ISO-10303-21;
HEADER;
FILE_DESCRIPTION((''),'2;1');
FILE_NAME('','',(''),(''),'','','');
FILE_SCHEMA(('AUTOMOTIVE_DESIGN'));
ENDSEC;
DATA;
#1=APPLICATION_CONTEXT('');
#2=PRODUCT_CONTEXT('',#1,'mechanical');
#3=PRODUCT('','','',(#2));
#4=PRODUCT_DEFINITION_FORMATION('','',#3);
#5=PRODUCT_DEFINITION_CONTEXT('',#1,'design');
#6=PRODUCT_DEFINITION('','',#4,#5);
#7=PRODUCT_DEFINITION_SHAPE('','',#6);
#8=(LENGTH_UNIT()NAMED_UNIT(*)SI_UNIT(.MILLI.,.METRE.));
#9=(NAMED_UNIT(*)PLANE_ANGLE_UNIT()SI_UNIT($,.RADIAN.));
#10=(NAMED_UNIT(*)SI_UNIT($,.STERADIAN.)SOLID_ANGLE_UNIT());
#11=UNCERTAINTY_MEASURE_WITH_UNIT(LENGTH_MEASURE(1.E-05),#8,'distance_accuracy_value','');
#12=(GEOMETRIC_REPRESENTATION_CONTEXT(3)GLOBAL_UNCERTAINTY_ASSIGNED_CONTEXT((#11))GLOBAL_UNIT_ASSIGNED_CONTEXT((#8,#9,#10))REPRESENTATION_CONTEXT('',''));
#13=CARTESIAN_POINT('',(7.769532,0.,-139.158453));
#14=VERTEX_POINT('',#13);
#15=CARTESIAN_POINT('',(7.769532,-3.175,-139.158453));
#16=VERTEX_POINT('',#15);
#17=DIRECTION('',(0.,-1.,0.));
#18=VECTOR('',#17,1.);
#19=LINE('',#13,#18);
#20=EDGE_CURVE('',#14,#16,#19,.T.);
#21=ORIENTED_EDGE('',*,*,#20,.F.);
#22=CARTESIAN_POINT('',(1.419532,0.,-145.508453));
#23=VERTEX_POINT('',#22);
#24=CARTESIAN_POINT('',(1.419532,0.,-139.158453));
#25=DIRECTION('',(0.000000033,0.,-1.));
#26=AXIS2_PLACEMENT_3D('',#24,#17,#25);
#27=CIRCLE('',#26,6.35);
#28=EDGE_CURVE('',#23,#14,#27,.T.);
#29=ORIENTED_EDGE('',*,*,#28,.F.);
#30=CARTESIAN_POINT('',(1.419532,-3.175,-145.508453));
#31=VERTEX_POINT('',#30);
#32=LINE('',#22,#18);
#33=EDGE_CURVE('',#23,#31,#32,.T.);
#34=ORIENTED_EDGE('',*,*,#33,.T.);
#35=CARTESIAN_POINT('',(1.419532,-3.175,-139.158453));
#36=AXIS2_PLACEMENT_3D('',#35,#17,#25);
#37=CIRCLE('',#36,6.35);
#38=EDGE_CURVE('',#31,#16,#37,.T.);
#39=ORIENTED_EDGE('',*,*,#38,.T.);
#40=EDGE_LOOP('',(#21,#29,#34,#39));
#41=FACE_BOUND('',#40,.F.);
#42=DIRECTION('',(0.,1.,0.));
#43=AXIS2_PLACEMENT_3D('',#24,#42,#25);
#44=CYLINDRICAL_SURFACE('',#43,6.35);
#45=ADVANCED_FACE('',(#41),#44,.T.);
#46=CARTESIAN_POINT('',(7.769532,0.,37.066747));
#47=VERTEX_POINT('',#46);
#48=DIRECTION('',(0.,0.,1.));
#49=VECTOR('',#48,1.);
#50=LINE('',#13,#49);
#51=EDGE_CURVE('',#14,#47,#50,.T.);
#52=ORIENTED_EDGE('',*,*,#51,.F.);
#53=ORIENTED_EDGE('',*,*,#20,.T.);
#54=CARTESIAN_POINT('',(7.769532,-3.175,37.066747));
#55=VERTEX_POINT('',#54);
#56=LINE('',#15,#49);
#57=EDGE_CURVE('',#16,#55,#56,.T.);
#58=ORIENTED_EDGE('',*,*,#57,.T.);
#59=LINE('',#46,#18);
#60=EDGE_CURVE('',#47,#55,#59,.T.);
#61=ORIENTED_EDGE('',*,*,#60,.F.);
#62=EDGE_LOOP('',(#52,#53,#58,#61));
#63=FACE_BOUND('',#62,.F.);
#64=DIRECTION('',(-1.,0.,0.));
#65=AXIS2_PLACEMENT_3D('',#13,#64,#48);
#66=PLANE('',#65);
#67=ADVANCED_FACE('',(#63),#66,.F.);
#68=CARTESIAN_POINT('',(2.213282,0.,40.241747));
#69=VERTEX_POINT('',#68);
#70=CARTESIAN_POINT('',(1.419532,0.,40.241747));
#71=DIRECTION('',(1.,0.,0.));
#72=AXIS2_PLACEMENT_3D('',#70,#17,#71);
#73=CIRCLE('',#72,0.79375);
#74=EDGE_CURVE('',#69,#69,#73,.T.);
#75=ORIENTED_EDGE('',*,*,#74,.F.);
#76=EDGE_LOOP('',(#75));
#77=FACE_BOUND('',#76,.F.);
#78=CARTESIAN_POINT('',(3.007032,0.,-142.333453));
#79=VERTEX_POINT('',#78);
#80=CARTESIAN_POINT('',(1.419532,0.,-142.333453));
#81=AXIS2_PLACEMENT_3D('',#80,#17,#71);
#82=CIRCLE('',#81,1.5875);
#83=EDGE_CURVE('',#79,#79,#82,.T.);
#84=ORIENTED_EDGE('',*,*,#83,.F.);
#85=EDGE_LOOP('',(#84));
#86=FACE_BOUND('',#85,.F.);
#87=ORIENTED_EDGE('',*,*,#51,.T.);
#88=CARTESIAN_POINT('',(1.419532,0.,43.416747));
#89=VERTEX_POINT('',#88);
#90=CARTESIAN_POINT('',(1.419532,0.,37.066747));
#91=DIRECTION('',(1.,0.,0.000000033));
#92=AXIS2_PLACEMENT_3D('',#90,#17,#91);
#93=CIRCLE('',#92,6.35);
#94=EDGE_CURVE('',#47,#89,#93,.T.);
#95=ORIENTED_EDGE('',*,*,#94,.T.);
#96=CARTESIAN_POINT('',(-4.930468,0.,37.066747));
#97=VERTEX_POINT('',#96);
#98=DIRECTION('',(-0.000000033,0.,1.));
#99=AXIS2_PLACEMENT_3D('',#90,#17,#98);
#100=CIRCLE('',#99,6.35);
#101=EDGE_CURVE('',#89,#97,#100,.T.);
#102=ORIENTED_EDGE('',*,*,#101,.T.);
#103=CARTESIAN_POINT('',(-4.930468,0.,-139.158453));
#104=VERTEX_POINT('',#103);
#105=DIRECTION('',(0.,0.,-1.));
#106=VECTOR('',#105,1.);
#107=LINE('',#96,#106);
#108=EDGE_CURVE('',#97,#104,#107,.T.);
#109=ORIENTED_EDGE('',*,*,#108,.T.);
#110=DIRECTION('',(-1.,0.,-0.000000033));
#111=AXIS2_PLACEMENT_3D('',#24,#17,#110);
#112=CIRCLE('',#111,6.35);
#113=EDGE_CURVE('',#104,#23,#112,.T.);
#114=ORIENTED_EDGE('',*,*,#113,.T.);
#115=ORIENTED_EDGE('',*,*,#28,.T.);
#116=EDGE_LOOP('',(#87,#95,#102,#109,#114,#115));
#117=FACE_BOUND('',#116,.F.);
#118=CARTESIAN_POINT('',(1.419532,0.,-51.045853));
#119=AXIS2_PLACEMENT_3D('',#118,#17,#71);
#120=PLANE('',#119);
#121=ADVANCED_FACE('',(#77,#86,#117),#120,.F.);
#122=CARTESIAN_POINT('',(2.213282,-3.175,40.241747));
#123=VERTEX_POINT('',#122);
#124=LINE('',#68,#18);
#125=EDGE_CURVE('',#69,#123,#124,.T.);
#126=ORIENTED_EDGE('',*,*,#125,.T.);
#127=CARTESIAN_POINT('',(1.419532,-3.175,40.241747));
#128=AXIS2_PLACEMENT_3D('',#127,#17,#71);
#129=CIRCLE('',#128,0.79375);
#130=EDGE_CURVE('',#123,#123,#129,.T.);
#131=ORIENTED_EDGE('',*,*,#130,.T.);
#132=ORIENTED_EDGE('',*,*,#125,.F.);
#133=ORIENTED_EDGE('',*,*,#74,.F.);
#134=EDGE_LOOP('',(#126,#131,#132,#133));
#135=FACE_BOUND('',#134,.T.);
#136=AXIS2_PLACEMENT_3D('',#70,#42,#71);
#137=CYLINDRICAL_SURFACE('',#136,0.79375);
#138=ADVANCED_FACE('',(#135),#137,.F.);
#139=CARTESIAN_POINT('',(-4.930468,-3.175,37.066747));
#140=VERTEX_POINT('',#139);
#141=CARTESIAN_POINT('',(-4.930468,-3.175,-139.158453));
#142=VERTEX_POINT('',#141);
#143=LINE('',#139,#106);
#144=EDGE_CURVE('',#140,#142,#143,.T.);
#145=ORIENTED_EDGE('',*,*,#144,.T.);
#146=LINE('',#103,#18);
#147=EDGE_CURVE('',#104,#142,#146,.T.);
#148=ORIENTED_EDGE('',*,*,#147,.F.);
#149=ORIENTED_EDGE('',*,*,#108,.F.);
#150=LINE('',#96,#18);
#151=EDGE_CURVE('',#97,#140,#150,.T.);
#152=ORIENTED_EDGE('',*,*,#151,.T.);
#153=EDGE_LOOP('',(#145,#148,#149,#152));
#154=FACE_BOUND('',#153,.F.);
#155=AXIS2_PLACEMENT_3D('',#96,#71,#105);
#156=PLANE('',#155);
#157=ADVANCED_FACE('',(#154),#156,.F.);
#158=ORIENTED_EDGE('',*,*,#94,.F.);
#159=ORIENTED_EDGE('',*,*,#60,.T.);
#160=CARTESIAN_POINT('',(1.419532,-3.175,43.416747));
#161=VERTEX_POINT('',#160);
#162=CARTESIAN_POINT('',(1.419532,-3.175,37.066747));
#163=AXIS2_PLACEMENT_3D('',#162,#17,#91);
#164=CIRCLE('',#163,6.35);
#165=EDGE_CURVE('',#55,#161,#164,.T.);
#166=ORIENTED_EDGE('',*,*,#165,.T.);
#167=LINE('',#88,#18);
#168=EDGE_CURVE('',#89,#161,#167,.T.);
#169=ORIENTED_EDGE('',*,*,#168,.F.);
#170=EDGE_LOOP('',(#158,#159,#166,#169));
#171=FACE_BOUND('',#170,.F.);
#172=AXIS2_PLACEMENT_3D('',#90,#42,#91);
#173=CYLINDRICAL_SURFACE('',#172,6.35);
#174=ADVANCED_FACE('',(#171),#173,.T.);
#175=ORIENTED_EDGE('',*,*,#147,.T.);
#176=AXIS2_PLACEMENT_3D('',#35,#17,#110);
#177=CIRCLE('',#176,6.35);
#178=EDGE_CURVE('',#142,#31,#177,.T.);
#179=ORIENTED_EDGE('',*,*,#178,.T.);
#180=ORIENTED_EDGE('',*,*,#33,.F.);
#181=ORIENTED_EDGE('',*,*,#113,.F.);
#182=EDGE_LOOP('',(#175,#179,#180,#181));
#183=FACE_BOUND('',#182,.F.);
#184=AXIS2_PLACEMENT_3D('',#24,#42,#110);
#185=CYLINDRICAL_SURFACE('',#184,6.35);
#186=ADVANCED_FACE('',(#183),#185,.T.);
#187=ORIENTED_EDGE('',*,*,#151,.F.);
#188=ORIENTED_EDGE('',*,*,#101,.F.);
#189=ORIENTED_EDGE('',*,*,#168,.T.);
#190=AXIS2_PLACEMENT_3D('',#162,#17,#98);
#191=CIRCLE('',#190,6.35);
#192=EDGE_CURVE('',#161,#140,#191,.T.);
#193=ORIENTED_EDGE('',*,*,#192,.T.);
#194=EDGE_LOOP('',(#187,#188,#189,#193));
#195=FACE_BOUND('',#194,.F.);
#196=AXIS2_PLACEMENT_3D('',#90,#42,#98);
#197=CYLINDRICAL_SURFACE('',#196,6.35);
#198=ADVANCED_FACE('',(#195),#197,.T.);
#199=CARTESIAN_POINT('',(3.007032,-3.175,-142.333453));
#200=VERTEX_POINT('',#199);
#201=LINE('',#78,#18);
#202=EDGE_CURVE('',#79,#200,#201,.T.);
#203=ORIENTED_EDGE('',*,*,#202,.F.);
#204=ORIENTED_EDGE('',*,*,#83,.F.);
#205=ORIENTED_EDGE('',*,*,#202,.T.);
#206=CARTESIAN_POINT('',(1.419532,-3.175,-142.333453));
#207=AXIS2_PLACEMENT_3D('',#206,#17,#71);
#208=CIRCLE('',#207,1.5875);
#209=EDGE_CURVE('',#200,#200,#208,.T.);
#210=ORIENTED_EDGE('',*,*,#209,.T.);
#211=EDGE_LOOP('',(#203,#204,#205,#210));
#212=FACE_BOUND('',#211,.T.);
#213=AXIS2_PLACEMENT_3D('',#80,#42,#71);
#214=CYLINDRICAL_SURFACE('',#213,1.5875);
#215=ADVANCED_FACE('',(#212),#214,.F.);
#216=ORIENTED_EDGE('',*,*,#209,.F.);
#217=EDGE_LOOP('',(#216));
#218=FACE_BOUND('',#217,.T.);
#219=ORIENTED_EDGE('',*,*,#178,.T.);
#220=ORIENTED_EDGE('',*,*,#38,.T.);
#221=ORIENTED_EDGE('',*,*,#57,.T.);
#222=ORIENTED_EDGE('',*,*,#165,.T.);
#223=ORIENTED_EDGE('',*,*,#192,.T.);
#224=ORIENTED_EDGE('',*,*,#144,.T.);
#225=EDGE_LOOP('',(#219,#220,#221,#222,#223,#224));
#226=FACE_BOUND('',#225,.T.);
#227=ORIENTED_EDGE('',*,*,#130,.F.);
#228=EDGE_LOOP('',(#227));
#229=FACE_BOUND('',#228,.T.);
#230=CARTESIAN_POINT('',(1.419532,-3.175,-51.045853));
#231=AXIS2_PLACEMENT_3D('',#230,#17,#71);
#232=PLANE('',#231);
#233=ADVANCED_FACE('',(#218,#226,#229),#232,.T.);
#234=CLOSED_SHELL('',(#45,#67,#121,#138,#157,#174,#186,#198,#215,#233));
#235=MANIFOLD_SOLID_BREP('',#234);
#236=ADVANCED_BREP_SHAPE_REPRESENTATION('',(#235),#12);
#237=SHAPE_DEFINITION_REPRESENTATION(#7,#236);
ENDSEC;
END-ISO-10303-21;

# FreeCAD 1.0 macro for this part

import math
import FreeCAD as App
import Part
import Sketcher

V = App.Vector
Q = App.Units.Quantity

doc = App.newDocument("Part")
body = doc.addObject("PartDesign::Body", "Body")

# Sketch on XZ plane
sketch1 = body.newObject("Sketcher::SketchObject", "Sketch")
sketch1.AttachmentSupport = (doc.getObject("XZ_Plane"), [""])
sketch1.MapMode = "FlatFace"
sketch1.addGeometry([
    Part.ArcOfCircle(Part.Circle(V(1.419532, 37.066747, 0), V(0, 0, 1), 6.35), math.radians(90.000002), math.radians(179.999998)),  # 0
    Part.LineSegment(V(-4.930468, 37.066747, 0), V(-4.930468, -139.158453, 0)),  # 1
    Part.ArcOfCircle(Part.Circle(V(1.419532, -139.158453, 0), V(0, 0, 1), 6.35), math.radians(-179.999998), math.radians(-90.000002)),  # 2
    Part.ArcOfCircle(Part.Circle(V(1.419532, -139.158453, 0), V(0, 0, 1), 6.35), math.radians(-89.999998), math.radians(-0.000002)),  # 3
    Part.LineSegment(V(7.769532, -139.158453, 0), V(7.769532, 37.066747, 0)),  # 4
    Part.ArcOfCircle(Part.Circle(V(1.419532, 37.066747, 0), V(0, 0, 1), 6.35), math.radians(0.000002), math.radians(89.999998)),  # 5
    Part.Circle(V(1.419532, -142.333453, 0), V(0, 0, 1), 1.5875),  # 6
    Part.Circle(V(1.419532, 40.241747, 0), V(0, 0, 1), 0.79375),  # 7
], False)
sketch1.addConstraint([
    Sketcher.Constraint("Tangent", 0, 2, 1, 1),
    Sketcher.Constraint("Tangent", 1, 2, 2, 1),
    Sketcher.Constraint("Tangent", 2, 2, 3, 1),
    Sketcher.Constraint("Tangent", 3, 2, 4, 1),
    Sketcher.Constraint("Tangent", 4, 2, 5, 1),
    Sketcher.Constraint("Tangent", 5, 2, 0, 1),
    Sketcher.Constraint("Vertical", 1),
    Sketcher.Constraint("Vertical", 4),
    Sketcher.Constraint("Equal", 0, 2),
    Sketcher.Constraint("Equal", 2, 3),
    Sketcher.Constraint("Vertical", 5, 3, 6, 3),
    Sketcher.Constraint("Vertical", 6, 3, 7, 3),
    Sketcher.Constraint("Vertical", 7, 3, 2, 2),
    Sketcher.Constraint("Vertical", 2, 2, 5, 2),
    Sketcher.Constraint("Radius", 0, Q("0.25 in")),
    Sketcher.Constraint("Diameter", 6, Q("0.125 in")),
    Sketcher.Constraint("Diameter", 7, Q("0.0625 in")),
    Sketcher.Constraint("DistanceY", 1, 2, 1, 1, Q("6.938 in")),
    Sketcher.Constraint("DistanceY", 6, 3, 2, 3, Q("0.125 in")),
    Sketcher.Constraint("DistanceY", 0, 3, 7, 3, Q("0.125 in")),
    Sketcher.Constraint("DistanceX", -1, 1, 3, 3, Q("1.419532 mm")),
    Sketcher.Constraint("DistanceY", -1, 1, 0, 3, Q("37.066747 mm")),
])
pad1 = body.newObject("PartDesign::Pad", "Pad")
pad1.Profile = sketch1
pad1.Length = Q("0.125 in")

doc.recompute()
